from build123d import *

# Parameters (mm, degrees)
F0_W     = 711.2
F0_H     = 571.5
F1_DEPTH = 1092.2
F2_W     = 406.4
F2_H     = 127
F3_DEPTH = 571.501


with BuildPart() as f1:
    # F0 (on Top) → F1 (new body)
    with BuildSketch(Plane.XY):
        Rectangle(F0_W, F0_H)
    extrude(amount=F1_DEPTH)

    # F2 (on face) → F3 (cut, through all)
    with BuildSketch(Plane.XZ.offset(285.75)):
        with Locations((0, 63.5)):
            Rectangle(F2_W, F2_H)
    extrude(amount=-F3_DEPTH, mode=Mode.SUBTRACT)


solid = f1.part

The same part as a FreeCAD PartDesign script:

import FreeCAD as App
import Part
import Sketcher
Q = App.Units.Quantity


def add_polygon(sketch, points):
    """Adds a closed chain of lines whose ends are joined by coincident constraints."""
    first, n = sketch.GeometryCount, len(points)
    for a, b in zip(points, points[1:] + points[:1]):
        sketch.addGeometry(Part.LineSegment(App.Vector(*a, 0), App.Vector(*b, 0)), False)
    for i in range(n):
        sketch.addConstraint(Sketcher.Constraint("Coincident", first + i, 2, first + (i + 1) % n, 1))

doc = App.newDocument("Part")
body = doc.addObject("PartDesign::Body", "Body")

sketch1 = doc.addObject("Sketcher::SketchObject", "Sketch")
body.addObject(sketch1)
sketch1.AttachmentSupport = (doc.XY_Plane, [""])
sketch1.MapMode = "FlatFace"
add_polygon(sketch1, [(-356, 286), (-356, -286), (356, -286), (356, 286)])
sketch1.addConstraint(Sketcher.Constraint("Vertical", 0))
sketch1.addConstraint(Sketcher.Constraint("Horizontal", 1))
sketch1.addConstraint(Sketcher.Constraint("Vertical", 2))
sketch1.addConstraint(Sketcher.Constraint("Horizontal", 3))
sketch1.addConstraint(Sketcher.Constraint("Symmetric", 0, 2, 2, 2, -1, 1))
sketch1.addConstraint(Sketcher.Constraint("DistanceX", 1, 1, 1, 2, Q("28 in")))
sketch1.addConstraint(Sketcher.Constraint("DistanceY", 0, 2, 0, 1, Q("22.5 in")))
pad1 = doc.addObject("PartDesign::Pad", "Pad")
body.addObject(pad1)
pad1.Profile = sketch1
pad1.Length = Q("43 in")

sketch2 = doc.addObject("Sketcher::SketchObject", "Sketch001")
body.addObject(sketch2)
sketch2.AttachmentSupport = (doc.XZ_Plane, [""])
sketch2.MapMode = "FlatFace"
sketch2.AttachmentOffset = App.Placement(App.Vector(0, 0, 11.25 * 25.4), App.Rotation())
add_polygon(sketch2, [(-203, 127), (-203, 0), (203, 0), (203, 127)])
sketch2.addConstraint(Sketcher.Constraint("Vertical", 0))
sketch2.addConstraint(Sketcher.Constraint("Horizontal", 1))
sketch2.addConstraint(Sketcher.Constraint("Vertical", 2))
sketch2.addConstraint(Sketcher.Constraint("Horizontal", 3))
sketch2.addConstraint(Sketcher.Constraint("Symmetric", 0, 2, 1, 2, -1, 1))
sketch2.addConstraint(Sketcher.Constraint("DistanceX", 1, 1, 1, 2, Q("16 in")))
sketch2.addConstraint(Sketcher.Constraint("DistanceY", 0, 2, 0, 1, Q("5 in")))
pocket1 = doc.addObject("PartDesign::Pocket", "Pocket")
body.addObject(pocket1)
pocket1.Profile = sketch2
pocket1.Type = "ThroughAll"

doc.recompute()
